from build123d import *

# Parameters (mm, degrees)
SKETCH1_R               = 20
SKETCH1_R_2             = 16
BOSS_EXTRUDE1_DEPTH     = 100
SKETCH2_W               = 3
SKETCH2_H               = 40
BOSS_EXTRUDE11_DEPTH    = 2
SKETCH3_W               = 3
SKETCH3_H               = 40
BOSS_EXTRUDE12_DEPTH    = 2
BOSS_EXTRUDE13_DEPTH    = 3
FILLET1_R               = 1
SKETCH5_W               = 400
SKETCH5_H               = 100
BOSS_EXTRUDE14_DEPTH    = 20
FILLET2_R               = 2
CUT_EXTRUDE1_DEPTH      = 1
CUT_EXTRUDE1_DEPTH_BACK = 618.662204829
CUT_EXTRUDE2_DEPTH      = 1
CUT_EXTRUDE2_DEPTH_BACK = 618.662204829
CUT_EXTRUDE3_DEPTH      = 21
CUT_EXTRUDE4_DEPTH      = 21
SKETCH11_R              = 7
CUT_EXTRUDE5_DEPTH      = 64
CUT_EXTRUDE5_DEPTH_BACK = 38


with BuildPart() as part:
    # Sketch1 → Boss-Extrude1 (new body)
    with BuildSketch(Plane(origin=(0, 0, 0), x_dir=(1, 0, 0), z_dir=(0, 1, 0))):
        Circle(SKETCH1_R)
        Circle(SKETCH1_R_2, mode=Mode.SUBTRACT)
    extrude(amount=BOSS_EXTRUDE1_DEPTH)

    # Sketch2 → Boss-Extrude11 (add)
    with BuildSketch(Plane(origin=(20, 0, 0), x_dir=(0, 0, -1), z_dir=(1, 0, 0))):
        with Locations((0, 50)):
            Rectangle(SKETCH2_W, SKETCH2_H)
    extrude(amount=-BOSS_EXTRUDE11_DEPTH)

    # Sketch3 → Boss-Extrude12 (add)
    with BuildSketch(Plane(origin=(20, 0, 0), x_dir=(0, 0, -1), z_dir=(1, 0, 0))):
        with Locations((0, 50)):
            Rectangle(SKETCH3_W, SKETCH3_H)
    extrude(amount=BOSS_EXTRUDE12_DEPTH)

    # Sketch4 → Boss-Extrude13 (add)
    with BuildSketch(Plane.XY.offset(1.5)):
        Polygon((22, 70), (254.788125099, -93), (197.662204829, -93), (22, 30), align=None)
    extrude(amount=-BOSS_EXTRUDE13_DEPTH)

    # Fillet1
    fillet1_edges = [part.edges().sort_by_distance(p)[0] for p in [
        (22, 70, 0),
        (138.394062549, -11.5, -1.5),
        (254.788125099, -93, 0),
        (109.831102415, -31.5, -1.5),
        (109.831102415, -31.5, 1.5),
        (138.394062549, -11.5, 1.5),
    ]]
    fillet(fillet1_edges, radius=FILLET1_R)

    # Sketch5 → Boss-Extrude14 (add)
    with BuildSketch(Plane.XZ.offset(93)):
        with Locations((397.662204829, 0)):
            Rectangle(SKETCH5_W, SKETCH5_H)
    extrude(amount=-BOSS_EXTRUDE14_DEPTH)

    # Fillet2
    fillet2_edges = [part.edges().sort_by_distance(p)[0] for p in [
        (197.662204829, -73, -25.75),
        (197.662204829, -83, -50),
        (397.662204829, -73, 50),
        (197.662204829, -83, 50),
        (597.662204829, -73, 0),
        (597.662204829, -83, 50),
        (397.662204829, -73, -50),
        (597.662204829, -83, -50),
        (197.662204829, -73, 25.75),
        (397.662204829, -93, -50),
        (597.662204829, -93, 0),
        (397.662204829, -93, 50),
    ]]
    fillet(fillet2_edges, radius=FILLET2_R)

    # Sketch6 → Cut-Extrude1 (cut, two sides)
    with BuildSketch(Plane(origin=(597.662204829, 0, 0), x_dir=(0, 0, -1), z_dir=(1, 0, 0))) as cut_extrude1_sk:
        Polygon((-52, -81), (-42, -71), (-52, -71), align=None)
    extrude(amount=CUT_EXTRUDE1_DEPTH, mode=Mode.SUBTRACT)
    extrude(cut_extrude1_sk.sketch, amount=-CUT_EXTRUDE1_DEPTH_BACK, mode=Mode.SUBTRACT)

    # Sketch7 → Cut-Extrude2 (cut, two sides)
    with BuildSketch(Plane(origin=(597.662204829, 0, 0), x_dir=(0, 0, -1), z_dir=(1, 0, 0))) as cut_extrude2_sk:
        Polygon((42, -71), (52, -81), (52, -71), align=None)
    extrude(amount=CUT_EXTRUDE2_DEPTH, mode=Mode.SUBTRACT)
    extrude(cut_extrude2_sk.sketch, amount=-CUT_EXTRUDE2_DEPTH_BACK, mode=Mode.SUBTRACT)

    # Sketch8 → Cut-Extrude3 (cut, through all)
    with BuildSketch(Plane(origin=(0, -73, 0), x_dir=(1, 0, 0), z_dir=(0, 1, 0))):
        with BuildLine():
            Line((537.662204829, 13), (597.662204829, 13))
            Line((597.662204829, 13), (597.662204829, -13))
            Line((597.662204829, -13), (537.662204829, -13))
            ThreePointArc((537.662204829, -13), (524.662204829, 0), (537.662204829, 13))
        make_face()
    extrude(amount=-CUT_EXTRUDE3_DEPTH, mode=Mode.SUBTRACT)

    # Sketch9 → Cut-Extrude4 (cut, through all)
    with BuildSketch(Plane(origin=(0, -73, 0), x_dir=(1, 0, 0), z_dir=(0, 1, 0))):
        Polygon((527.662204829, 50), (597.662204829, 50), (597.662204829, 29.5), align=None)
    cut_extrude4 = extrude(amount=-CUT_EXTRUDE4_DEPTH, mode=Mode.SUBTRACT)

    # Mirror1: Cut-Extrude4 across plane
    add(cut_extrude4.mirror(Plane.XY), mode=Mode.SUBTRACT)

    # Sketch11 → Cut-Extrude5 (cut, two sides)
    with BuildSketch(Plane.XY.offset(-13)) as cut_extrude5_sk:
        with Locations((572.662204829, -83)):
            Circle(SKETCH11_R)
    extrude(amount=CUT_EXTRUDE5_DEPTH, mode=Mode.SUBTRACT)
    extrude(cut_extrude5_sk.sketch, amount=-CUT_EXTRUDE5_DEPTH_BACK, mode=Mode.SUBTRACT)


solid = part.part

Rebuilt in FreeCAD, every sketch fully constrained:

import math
import FreeCAD as App
import Part
import Sketcher
Q = App.Units.Quantity


def edges_at(feature, points):
    """Names of the edges that pass closest to the given points."""
    edges = feature.Shape.Edges
    near = lambda p: min(range(len(edges)), key=lambda i: edges[i].distToShape(Part.Vertex(*p))[0])
    return sorted({f"Edge{near(p) + 1}" for p in points})


def add_polygon(sketch, points):
    """Adds a closed chain of lines whose ends are joined by coincident constraints."""
    first, n = sketch.GeometryCount, len(points)
    for a, b in zip(points, points[1:] + points[:1]):
        sketch.addGeometry(Part.LineSegment(App.Vector(*a, 0), App.Vector(*b, 0)), False)
    for i in range(n):
        sketch.addConstraint(Sketcher.Constraint("Coincident", first + i, 2, first + (i + 1) % n, 1))

doc = App.newDocument("Part")
params = doc.addObject("Spreadsheet::Sheet", "Params")
for row, (alias, value) in enumerate([
    ("sketch1_diameter", "40 mm"),
    ("sketch1_diameter2", "32 mm"),
    ("pad1_length", "100 mm"),
    ("sketch2_width", "40 mm"),
    ("sketch2_height", "3 mm"),
    ("pad2_length", "2 mm"),
    ("sketch3_width", "40 mm"),
    ("sketch3_height", "3 mm"),
    ("pad3_length", "2 mm"),
    ("sketch4_height", "40 mm"),
    ("pad4_length", "3 mm"),
    ("fillet_radius", "1 mm"),
    ("sketch5_width", "400 mm"),
    ("sketch5_height", "100 mm"),
    ("pad5_length", "20 mm"),
    ("fillet2_radius", "2 mm"),
    ("sketch6_width", "10 mm"),
    ("sketch7_width", "10 mm"),
    ("sketch8_radius", "13 mm"),
    ("sketch8_width", "60 mm"),
    ("sketch9_width", "70 mm"),
    ("sketch9_height", "20.5 mm"),
    ("sketch10_diameter", "14 mm"),
], start=1):
    params.set(f"A{row}", alias)
    params.set(f"B{row}", "=" + value)
    params.setAlias(f"B{row}", alias)

body = doc.addObject("PartDesign::Body", "Body")

# Sketch on XZ plane
sketch1 = doc.addObject("Sketcher::SketchObject", "Sketch")
body.addObject(sketch1)
sketch1.AttachmentSupport = (doc.XZ_Plane, [""])
sketch1.MapMode = "FlatFace"
sketch1.addGeometry(Part.Circle(App.Vector(0, 0, 0), App.Vector(0, 0, 1), 20), False)
sketch1.addGeometry(Part.Circle(App.Vector(0, 0, 0), App.Vector(0, 0, 1), 16), False)
sketch1.addConstraint(Sketcher.Constraint("Coincident", 0, 3, -1, 1))
sketch1.addConstraint(Sketcher.Constraint("Coincident", 1, 3, -1, 1))
sketch1.addConstraint(Sketcher.Constraint("Diameter", 0, 40.0))
sketch1.addConstraint(Sketcher.Constraint("Diameter", 1, 32.0))
sketch1.setExpression("Constraints[2]", "Params.sketch1_diameter")
sketch1.setExpression("Constraints[3]", "Params.sketch1_diameter2")
pad1 = doc.addObject("PartDesign::Pad", "Pad")
body.addObject(pad1)
pad1.Profile = sketch1
pad1.setExpression("Length", "Params.pad1_length")
pad1.Reversed = True

# Sketch on YZ plane
sketch2 = doc.addObject("Sketcher::SketchObject", "Sketch001")
body.addObject(sketch2)
sketch2.AttachmentSupport = (doc.YZ_Plane, [""])
sketch2.MapMode = "FlatFace"
sketch2.AttachmentOffset = App.Placement(App.Vector(0, 0, 20), App.Rotation())
add_polygon(sketch2, [(70, 1.5), (30, 1.5), (30, -1.5), (70, -1.5)])  # lines 0-3
sketch2.addConstraint(Sketcher.Constraint("Horizontal", 0))
sketch2.addConstraint(Sketcher.Constraint("Vertical", 1))
sketch2.addConstraint(Sketcher.Constraint("Horizontal", 2))
sketch2.addConstraint(Sketcher.Constraint("Vertical", 3))
sketch2.addConstraint(Sketcher.Constraint("DistanceX", 0, 2, 0, 1, 40.0))
sketch2.addConstraint(Sketcher.Constraint("DistanceY", 1, 2, 1, 1, 3.0))
sketch2.addConstraint(Sketcher.Constraint("DistanceX", -1, 1, 0, 2, 30.0))
sketch2.addConstraint(Sketcher.Constraint("DistanceY", -1, 1, 0, 2, 1.5))
sketch2.setExpression("Constraints[8]", "Params.sketch2_width")
sketch2.setExpression("Constraints[9]", "Params.sketch2_height")
pad2 = doc.addObject("PartDesign::Pad", "Pad001")
body.addObject(pad2)
pad2.Profile = sketch2
pad2.setExpression("Length", "Params.pad2_length")
pad2.Reversed = True

# Sketch on YZ plane
sketch3 = doc.addObject("Sketcher::SketchObject", "Sketch002")
body.addObject(sketch3)
sketch3.AttachmentSupport = (doc.YZ_Plane, [""])
sketch3.MapMode = "FlatFace"
sketch3.AttachmentOffset = App.Placement(App.Vector(0, 0, 20), App.Rotation())
add_polygon(sketch3, [(70, 1.5), (30, 1.5), (30, -1.5), (70, -1.5)])  # lines 0-3
sketch3.addConstraint(Sketcher.Constraint("Horizontal", 0))
sketch3.addConstraint(Sketcher.Constraint("Vertical", 1))
sketch3.addConstraint(Sketcher.Constraint("Horizontal", 2))
sketch3.addConstraint(Sketcher.Constraint("Vertical", 3))
sketch3.addConstraint(Sketcher.Constraint("DistanceX", 0, 2, 0, 1, 40.0))
sketch3.addConstraint(Sketcher.Constraint("DistanceY", 1, 2, 1, 1, 3.0))
sketch3.addConstraint(Sketcher.Constraint("DistanceX", -1, 1, 0, 2, 30.0))
sketch3.addConstraint(Sketcher.Constraint("DistanceY", -1, 1, 0, 2, 1.5))
sketch3.setExpression("Constraints[8]", "Params.sketch3_width")
sketch3.setExpression("Constraints[9]", "Params.sketch3_height")
pad3 = doc.addObject("PartDesign::Pad", "Pad002")
body.addObject(pad3)
pad3.Profile = sketch3
pad3.setExpression("Length", "Params.pad3_length")

# Sketch on XY plane
sketch4 = doc.addObject("Sketcher::SketchObject", "Sketch003")
body.addObject(sketch4)
sketch4.AttachmentSupport = (doc.XY_Plane, [""])
sketch4.MapMode = "FlatFace"
sketch4.AttachmentOffset = App.Placement(App.Vector(0, 0, 1.5), App.Rotation())
add_polygon(sketch4, [(255, -93), (22, 70), (22, 30), (198, -93)])  # lines 0-3
sketch4.addConstraint(Sketcher.Constraint("Vertical", 1))
sketch4.addConstraint(Sketcher.Constraint("Horizontal", 3))
sketch4.addConstraint(Sketcher.Constraint("Parallel", 0, 2))
sketch4.addConstraint(Sketcher.Constraint("DistanceY", 1, 2, 1, 1, 40.0))
sketch4.addConstraint(Sketcher.Constraint("Angle", 0, Q("145 deg")))
sketch4.addConstraint(Sketcher.Constraint("DistanceX", -1, 1, 0, 2, 22.0))
sketch4.addConstraint(Sketcher.Constraint("DistanceY", -1, 1, 0, 2, 70.0))
sketch4.addConstraint(Sketcher.Constraint("DistanceY", 2, 2, -1, 1, 93.0))
sketch4.setExpression("Constraints[7]", "Params.sketch4_height")
pad4 = doc.addObject("PartDesign::Pad", "Pad003")
body.addObject(pad4)
pad4.Profile = sketch4
pad4.setExpression("Length", "Params.pad4_length")
pad4.Reversed = True
doc.recompute()

fillet = doc.addObject("PartDesign::Fillet", "Fillet")
body.addObject(fillet)
fillet.Base = (pad4, edges_at(pad4, [
    (22, 70, 0),
    (138.394, -11.5, -1.5),
    (254.788, -93, 0),
    (109.831, -31.5, -1.5),
    (109.831, -31.5, 1.5),
    (138.394, -11.5, 1.5),
]))
fillet.setExpression("Radius", "Params.fillet_radius")

# Sketch on XZ plane
sketch5 = doc.addObject("Sketcher::SketchObject", "Sketch004")
body.addObject(sketch5)
sketch5.AttachmentSupport = (doc.XZ_Plane, [""])
sketch5.MapMode = "FlatFace"
sketch5.AttachmentOffset = App.Placement(App.Vector(0, 0, 93), App.Rotation())
add_polygon(sketch5, [(198, 50), (198, -50), (598, -50), (598, 50)])  # lines 0-3
sketch5.addConstraint(Sketcher.Constraint("Vertical", 0))
sketch5.addConstraint(Sketcher.Constraint("Horizontal", 1))
sketch5.addConstraint(Sketcher.Constraint("Vertical", 2))
sketch5.addConstraint(Sketcher.Constraint("Horizontal", 3))
sketch5.addConstraint(Sketcher.Constraint("DistanceX", 1, 1, 1, 2, 400.0))
sketch5.addConstraint(Sketcher.Constraint("DistanceY", 0, 2, 0, 1, 100.0))
sketch5.addConstraint(Sketcher.Constraint("DistanceY", 0, 2, -1, 1, 50.0))
sketch5.addConstraint(Sketcher.Constraint("DistanceX", -1, 1, 0, 2, 197.662205))
sketch5.setExpression("Constraints[8]", "Params.sketch5_width")
sketch5.setExpression("Constraints[9]", "Params.sketch5_height")
pad5 = doc.addObject("PartDesign::Pad", "Pad004")
body.addObject(pad5)
pad5.Profile = sketch5
pad5.setExpression("Length", "Params.pad5_length")
pad5.Reversed = True
doc.recompute()

fillet2 = doc.addObject("PartDesign::Fillet", "Fillet001")
body.addObject(fillet2)
fillet2.Base = (pad5, edges_at(pad5, [
    (197.662, -73, -25.75),
    (197.662, -83, -50),
    (397.662, -73, 50),
    (197.662, -83, 50),
    (597.662, -73, 0),
    (597.662, -83, 50),
    (397.662, -73, -50),
    (597.662, -83, -50),
    (197.662, -73, 25.75),
    (397.662, -93, -50),
    (597.662, -93, 0),
    (397.662, -93, 50),
]))
fillet2.setExpression("Radius", "Params.fillet2_radius")

# Sketch on YZ plane
sketch6 = doc.addObject("Sketcher::SketchObject", "Sketch005")
body.addObject(sketch6)
sketch6.AttachmentSupport = (doc.YZ_Plane, [""])
sketch6.MapMode = "FlatFace"
sketch6.AttachmentOffset = App.Placement(App.Vector(0, 0, 597.662205), App.Rotation())
add_polygon(sketch6, [(-81, 52), (-71, 42), (-71, 52)])  # lines 0-2
sketch6.addConstraint(Sketcher.Constraint("Vertical", 1))
sketch6.addConstraint(Sketcher.Constraint("Horizontal", 2))
sketch6.addConstraint(Sketcher.Constraint("Equal", 2, 1))
sketch6.addConstraint(Sketcher.Constraint("DistanceX", 2, 2, 2, 1, 10.0))
sketch6.addConstraint(Sketcher.Constraint("DistanceX", 0, 2, -1, 1, 71.0))
sketch6.addConstraint(Sketcher.Constraint("DistanceY", -1, 1, 0, 2, 42.0))
sketch6.setExpression("Constraints[6]", "Params.sketch6_width")
pocket1 = doc.addObject("PartDesign::Pocket", "Pocket")
body.addObject(pocket1)
pocket1.Profile = sketch6
pocket1.Type = "ThroughAll"
pocket1.Midplane = True

# Sketch on YZ plane
sketch7 = doc.addObject("Sketcher::SketchObject", "Sketch006")
body.addObject(sketch7)
sketch7.AttachmentSupport = (doc.YZ_Plane, [""])
sketch7.MapMode = "FlatFace"
sketch7.AttachmentOffset = App.Placement(App.Vector(0, 0, 597.662205), App.Rotation())
add_polygon(sketch7, [(-71, -42), (-81, -52), (-71, -52)])  # lines 0-2
sketch7.addConstraint(Sketcher.Constraint("Horizontal", 1))
sketch7.addConstraint(Sketcher.Constraint("Vertical", 2))
sketch7.addConstraint(Sketcher.Constraint("Equal", 1, 2))
sketch7.addConstraint(Sketcher.Constraint("DistanceX", 1, 1, 1, 2, 10.0))
sketch7.addConstraint(Sketcher.Constraint("DistanceX", 0, 2, -1, 1, 81.0))
sketch7.addConstraint(Sketcher.Constraint("DistanceY", 0, 2, -1, 1, 52.0))
sketch7.setExpression("Constraints[6]", "Params.sketch7_width")
pocket2 = doc.addObject("PartDesign::Pocket", "Pocket001")
body.addObject(pocket2)
pocket2.Profile = sketch7
pocket2.Type = "ThroughAll"
pocket2.Midplane = True

# Sketch on XZ plane
sketch8 = doc.addObject("Sketcher::SketchObject", "Sketch007")
body.addObject(sketch8)
sketch8.AttachmentSupport = (doc.XZ_Plane, [""])
sketch8.MapMode = "FlatFace"
sketch8.AttachmentOffset = App.Placement(App.Vector(0, 0, 73), App.Rotation())
sketch8.addGeometry(Part.LineSegment(App.Vector(598, -13, 0), App.Vector(538, -13, 0)), False)
sketch8.addGeometry(Part.ArcOfCircle(Part.Circle(App.Vector(538, 0, 0), App.Vector(0, 0, 1), 13), math.radians(90), math.radians(270)), False)
sketch8.addGeometry(Part.LineSegment(App.Vector(538, 13, 0), App.Vector(598, 13, 0)), False)
sketch8.addGeometry(Part.LineSegment(App.Vector(598, 13, 0), App.Vector(598, -13, 0)), False)
sketch8.addConstraint(Sketcher.Constraint("Tangent", 0, 2, 1, 2))
sketch8.addConstraint(Sketcher.Constraint("Tangent", 1, 1, 2, 1))
sketch8.addConstraint(Sketcher.Constraint("Coincident", 2, 2, 3, 1))
sketch8.addConstraint(Sketcher.Constraint("Coincident", 3, 2, 0, 1))
sketch8.addConstraint(Sketcher.Constraint("Horizontal", 0))
sketch8.addConstraint(Sketcher.Constraint("Horizontal", 2))
sketch8.addConstraint(Sketcher.Constraint("Vertical", 3))
sketch8.addConstraint(Sketcher.Constraint("PointOnObject", 1, 3, -1))
sketch8.addConstraint(Sketcher.Constraint("Radius", 1, 13.0))
sketch8.addConstraint(Sketcher.Constraint("DistanceX", 0, 2, 0, 1, 60.0))
sketch8.addConstraint(Sketcher.Constraint("DistanceX", -1, 1, 1, 3, 537.662205))
sketch8.setExpression("Constraints[8]", "Params.sketch8_radius")
sketch8.setExpression("Constraints[9]", "Params.sketch8_width")
pocket3 = doc.addObject("PartDesign::Pocket", "Pocket002")
body.addObject(pocket3)
pocket3.Profile = sketch8
pocket3.Type = "ThroughAll"
pocket3.Reversed = True

# Sketch on XZ plane
sketch9 = doc.addObject("Sketcher::SketchObject", "Sketch008")
body.addObject(sketch9)
sketch9.AttachmentSupport = (doc.XZ_Plane, [""])
sketch9.MapMode = "FlatFace"
sketch9.AttachmentOffset = App.Placement(App.Vector(0, 0, 73), App.Rotation())
add_polygon(sketch9, [(598, -50), (528, -50), (598, -30)])  # lines 0-2
sketch9.addConstraint(Sketcher.Constraint("Horizontal", 0))
sketch9.addConstraint(Sketcher.Constraint("Vertical", 2))
sketch9.addConstraint(Sketcher.Constraint("DistanceX", 0, 2, 0, 1, 70.0))
sketch9.addConstraint(Sketcher.Constraint("DistanceY", 2, 2, 2, 1, 20.5))
sketch9.addConstraint(Sketcher.Constraint("DistanceY", 0, 2, -1, 1, 50.0))
sketch9.addConstraint(Sketcher.Constraint("DistanceX", -1, 1, 0, 2, 527.662205))
sketch9.setExpression("Constraints[5]", "Params.sketch9_width")
sketch9.setExpression("Constraints[6]", "Params.sketch9_height")
pocket4 = doc.addObject("PartDesign::Pocket", "Pocket003")
body.addObject(pocket4)
pocket4.Profile = sketch9
pocket4.Type = "ThroughAll"
pocket4.Reversed = True
doc.recompute()

mirrored = doc.addObject("PartDesign::Mirrored", "Mirrored")
body.addObject(mirrored)
mirrored.Originals = [pocket4]
mirrored.MirrorPlane = (doc.XY_Plane, [""])
body.Tip = mirrored

# Sketch on XY plane
sketch10 = doc.addObject("Sketcher::SketchObject", "Sketch009")
body.addObject(sketch10)
sketch10.AttachmentSupport = (doc.XY_Plane, [""])
sketch10.MapMode = "FlatFace"
sketch10.AttachmentOffset = App.Placement(App.Vector(0, 0, -13), App.Rotation())
sketch10.addGeometry(Part.Circle(App.Vector(573, -83, 0), App.Vector(0, 0, 1), 7), False)
sketch10.addConstraint(Sketcher.Constraint("Diameter", 0, 14.0))
sketch10.addConstraint(Sketcher.Constraint("DistanceY", 0, 3, -1, 1, 83.0))
sketch10.addConstraint(Sketcher.Constraint("DistanceX", -1, 1, 0, 3, 572.662205))
sketch10.setExpression("Constraints[0]", "Params.sketch10_diameter")
pocket5 = doc.addObject("PartDesign::Pocket", "Pocket004")
body.addObject(pocket5)
pocket5.Profile = sketch10
pocket5.Type = "ThroughAll"
pocket5.Midplane = True

doc.recompute()
